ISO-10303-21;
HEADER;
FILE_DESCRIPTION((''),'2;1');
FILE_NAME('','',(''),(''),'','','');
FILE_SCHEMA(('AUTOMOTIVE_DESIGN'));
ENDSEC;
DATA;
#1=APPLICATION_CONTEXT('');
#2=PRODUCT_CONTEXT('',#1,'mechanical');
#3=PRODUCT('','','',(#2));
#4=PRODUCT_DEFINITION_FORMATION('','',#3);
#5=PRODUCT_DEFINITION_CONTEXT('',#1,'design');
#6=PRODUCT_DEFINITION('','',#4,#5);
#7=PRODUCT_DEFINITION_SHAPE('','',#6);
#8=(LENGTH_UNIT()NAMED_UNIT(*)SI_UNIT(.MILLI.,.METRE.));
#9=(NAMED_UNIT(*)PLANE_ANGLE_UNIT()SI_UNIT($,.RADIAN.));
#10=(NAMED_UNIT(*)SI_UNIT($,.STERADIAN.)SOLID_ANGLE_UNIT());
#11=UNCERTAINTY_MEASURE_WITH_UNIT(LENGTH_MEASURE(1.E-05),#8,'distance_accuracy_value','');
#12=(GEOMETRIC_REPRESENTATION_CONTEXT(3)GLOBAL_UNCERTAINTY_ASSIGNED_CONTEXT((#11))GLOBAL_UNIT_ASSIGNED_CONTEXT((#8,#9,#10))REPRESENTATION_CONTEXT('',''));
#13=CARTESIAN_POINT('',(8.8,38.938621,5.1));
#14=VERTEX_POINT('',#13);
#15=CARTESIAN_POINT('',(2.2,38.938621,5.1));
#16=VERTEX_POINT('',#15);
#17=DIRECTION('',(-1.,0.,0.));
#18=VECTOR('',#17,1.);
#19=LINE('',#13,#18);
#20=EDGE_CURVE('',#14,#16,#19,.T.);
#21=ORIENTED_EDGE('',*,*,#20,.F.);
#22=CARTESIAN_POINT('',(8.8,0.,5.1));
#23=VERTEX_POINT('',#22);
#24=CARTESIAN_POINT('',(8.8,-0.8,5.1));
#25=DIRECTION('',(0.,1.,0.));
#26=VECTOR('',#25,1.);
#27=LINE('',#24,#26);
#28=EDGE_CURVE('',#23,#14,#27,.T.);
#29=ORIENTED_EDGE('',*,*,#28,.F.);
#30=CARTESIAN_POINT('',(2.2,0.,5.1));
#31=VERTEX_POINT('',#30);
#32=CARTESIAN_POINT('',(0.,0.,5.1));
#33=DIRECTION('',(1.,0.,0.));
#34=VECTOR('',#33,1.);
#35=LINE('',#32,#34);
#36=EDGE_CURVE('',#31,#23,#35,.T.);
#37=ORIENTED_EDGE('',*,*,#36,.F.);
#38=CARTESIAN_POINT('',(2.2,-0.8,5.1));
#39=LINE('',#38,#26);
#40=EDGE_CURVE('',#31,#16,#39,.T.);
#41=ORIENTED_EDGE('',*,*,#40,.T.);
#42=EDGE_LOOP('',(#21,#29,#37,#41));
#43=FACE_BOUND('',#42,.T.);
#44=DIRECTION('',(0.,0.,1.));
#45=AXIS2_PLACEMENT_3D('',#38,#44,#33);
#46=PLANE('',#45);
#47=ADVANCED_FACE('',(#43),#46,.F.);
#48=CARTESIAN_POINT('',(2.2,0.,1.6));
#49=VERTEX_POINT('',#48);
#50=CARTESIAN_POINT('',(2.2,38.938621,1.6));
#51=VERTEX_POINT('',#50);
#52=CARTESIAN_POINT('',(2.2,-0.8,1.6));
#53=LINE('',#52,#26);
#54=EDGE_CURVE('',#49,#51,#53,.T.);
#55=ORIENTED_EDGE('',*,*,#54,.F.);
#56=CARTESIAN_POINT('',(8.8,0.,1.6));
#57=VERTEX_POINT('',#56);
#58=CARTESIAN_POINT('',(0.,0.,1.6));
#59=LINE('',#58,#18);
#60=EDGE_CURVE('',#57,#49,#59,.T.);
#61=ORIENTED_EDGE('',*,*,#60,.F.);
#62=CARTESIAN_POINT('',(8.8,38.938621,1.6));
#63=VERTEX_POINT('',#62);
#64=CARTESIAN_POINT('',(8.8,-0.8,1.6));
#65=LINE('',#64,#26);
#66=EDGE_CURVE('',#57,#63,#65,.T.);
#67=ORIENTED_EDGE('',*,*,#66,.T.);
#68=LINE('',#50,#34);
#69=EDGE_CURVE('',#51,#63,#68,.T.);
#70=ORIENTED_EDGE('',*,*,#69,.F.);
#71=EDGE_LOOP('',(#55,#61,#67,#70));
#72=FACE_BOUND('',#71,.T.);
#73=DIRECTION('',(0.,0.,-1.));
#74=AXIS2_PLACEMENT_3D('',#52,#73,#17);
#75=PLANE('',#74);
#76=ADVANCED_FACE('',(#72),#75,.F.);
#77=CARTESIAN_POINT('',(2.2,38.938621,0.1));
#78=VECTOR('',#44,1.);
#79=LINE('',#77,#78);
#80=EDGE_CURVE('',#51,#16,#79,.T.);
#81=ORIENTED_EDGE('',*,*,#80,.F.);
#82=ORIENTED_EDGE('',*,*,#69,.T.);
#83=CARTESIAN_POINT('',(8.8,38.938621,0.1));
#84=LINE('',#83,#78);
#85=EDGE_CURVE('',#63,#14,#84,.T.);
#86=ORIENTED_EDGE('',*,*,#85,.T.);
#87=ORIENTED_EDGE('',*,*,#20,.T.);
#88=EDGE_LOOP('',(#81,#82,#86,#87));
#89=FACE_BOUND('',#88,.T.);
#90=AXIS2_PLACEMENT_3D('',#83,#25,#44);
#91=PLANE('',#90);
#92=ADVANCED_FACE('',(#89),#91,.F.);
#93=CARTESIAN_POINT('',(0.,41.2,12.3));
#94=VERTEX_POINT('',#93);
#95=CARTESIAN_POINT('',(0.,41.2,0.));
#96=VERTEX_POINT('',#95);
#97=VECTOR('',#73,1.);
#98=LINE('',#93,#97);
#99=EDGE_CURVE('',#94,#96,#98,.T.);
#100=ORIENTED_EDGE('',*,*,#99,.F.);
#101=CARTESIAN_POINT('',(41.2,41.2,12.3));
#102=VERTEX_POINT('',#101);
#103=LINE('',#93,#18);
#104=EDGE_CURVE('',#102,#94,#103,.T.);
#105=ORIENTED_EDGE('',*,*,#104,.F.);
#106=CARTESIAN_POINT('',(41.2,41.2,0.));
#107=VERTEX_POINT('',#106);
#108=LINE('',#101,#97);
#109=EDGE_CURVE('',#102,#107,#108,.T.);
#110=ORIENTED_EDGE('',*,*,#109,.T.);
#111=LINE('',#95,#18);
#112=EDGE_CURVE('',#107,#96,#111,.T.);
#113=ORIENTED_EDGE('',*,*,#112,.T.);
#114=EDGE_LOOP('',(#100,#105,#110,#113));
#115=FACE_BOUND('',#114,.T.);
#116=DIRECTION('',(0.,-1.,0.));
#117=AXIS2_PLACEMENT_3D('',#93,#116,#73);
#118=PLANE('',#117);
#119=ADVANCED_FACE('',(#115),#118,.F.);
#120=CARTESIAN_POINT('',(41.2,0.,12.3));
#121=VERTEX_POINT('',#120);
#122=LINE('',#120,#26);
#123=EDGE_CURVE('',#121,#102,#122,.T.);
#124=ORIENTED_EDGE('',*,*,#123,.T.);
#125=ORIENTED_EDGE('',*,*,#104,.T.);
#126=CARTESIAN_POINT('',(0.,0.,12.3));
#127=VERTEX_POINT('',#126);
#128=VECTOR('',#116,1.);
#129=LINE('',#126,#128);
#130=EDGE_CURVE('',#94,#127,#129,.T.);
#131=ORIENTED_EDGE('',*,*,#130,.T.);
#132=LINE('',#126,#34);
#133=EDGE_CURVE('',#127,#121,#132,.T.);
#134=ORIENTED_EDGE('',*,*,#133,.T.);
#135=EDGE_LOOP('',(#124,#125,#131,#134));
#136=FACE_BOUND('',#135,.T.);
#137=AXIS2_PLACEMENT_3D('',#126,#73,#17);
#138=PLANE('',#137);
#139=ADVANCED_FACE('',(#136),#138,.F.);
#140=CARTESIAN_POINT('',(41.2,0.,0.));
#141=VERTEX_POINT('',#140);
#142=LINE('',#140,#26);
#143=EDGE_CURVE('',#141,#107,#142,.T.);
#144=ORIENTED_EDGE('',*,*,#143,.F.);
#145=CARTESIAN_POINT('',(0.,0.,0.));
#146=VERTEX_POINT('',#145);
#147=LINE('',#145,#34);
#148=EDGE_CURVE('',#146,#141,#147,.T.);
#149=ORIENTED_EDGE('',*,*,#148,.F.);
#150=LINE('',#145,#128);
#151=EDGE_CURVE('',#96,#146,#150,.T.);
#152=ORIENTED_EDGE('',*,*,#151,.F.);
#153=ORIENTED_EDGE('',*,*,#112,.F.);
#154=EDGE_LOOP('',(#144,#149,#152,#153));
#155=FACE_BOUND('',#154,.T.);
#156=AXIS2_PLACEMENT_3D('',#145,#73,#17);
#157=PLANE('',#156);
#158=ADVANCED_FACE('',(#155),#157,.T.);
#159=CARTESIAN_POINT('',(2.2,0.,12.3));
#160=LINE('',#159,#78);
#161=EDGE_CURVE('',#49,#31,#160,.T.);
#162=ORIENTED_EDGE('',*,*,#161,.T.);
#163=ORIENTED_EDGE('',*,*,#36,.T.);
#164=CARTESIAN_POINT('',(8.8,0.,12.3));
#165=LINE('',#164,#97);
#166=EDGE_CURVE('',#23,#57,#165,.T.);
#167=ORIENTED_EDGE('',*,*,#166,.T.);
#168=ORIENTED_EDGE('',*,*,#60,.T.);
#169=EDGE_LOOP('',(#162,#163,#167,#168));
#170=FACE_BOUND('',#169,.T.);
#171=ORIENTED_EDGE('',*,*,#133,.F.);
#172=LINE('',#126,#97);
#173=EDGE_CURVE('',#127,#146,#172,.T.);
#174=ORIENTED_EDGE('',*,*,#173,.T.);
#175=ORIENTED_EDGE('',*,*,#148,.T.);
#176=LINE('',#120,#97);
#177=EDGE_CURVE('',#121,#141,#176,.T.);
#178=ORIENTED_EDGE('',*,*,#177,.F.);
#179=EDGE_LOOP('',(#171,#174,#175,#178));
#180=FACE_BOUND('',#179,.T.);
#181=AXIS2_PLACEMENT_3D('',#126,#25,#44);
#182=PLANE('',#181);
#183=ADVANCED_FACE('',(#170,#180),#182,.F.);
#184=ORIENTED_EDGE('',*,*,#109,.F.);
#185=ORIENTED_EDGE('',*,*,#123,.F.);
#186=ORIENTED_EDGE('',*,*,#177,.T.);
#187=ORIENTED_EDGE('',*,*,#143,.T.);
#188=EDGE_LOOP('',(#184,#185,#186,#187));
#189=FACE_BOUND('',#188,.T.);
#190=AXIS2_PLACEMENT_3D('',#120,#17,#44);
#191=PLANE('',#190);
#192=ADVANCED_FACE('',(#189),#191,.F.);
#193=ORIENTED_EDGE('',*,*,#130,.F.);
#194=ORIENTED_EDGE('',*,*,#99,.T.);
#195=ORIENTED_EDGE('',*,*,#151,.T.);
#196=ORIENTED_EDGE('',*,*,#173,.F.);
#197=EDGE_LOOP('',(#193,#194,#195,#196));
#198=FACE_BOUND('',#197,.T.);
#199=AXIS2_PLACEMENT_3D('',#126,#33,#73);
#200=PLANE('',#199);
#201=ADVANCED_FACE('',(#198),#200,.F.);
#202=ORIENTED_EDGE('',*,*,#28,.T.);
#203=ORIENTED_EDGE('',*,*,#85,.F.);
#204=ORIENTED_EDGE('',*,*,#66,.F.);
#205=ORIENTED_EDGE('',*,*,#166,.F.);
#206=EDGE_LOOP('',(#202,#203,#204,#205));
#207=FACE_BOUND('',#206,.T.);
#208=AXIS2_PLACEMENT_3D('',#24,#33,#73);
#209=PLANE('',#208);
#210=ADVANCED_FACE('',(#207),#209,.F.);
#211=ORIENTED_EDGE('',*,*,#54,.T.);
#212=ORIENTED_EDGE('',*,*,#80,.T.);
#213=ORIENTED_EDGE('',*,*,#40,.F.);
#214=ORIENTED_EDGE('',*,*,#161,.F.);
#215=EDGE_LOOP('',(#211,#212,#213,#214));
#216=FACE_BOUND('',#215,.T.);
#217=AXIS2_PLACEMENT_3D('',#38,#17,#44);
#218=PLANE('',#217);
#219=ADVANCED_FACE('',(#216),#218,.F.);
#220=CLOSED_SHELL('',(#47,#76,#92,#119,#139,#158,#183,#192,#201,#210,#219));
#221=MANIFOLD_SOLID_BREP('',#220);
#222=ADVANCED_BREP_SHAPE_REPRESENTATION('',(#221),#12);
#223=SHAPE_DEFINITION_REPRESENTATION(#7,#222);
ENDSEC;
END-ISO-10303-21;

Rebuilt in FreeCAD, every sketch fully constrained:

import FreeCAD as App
import Part
import Sketcher

V = App.Vector


def add_polygon(sketch, points):
    """Adds a closed chain of lines whose ends are joined by coincident constraints."""
    first, n = sketch.GeometryCount, len(points)
    for a, b in zip(points, points[1:] + points[:1]):
        sketch.addGeometry(Part.LineSegment(App.Vector(*a, 0), App.Vector(*b, 0)), False)
    for i in range(n):
        sketch.addConstraint(Sketcher.Constraint("Coincident", first + i, 2, first + (i + 1) % n, 1))

doc = App.newDocument("Part")
body = doc.addObject("PartDesign::Body", "Body")

# Sketch on XY plane
sketch1 = body.newObject("Sketcher::SketchObject", "Sketch")
sketch1.AttachmentSupport = (doc.getObject("XY_Plane"), [""])
sketch1.MapMode = "FlatFace"
add_polygon(sketch1, [(0, 41), (0, 0), (41, 0), (41, 41)])  # lines 0-3
sketch1.addConstraint([
    Sketcher.Constraint("Vertical", 0),
    Sketcher.Constraint("Horizontal", 1),
    Sketcher.Constraint("Vertical", 2),
    Sketcher.Constraint("Horizontal", 3),
    Sketcher.Constraint("Coincident", 0, 2, -1, 1),
    Sketcher.Constraint("Equal", 3, 0),
    Sketcher.Constraint("DistanceX", 1, 1, 1, 2, 41.2),
])
pad1 = body.newObject("PartDesign::Pad", "Pad")
pad1.Profile = sketch1
pad1.Length = 12.3

# Sketch on XZ plane
sketch2 = body.newObject("Sketcher::SketchObject", "Sketch001")
sketch2.AttachmentSupport = (doc.getObject("XZ_Plane"), [""])
sketch2.MapMode = "FlatFace"
sketch2.AttachmentOffset = App.Placement(V(0, 0, -41.2), App.Rotation())
add_polygon(sketch2, [(2.2, 1.6), (2.2, 5.1), (8.8, 5.1), (8.8, 1.6)])  # lines 0-3
sketch2.addConstraint([
    Sketcher.Constraint("Vertical", 0),
    Sketcher.Constraint("Horizontal", 1),
    Sketcher.Constraint("Vertical", 2),
    Sketcher.Constraint("Horizontal", 3),
    Sketcher.Constraint("DistanceX", 1, 1, 1, 2, 6.6),
    Sketcher.Constraint("DistanceY", 0, 1, 0, 2, 3.5),
    Sketcher.Constraint("DistanceX", -1, 1, 0, 2, 2.2),
    Sketcher.Constraint("DistanceY", -1, 1, 0, 2, 5.1),
])
pocket1 = body.newObject("PartDesign::Pocket", "Pocket")
pocket1.Profile = sketch2
pocket1.Length = 42
pocket1.Reversed = True

# Sketch on XY plane
sketch3 = body.newObject("Sketcher::SketchObject", "Sketch002")
sketch3.AttachmentSupport = (doc.getObject("XY_Plane"), [""])
sketch3.MapMode = "FlatFace"
sketch3.AttachmentOffset = App.Placement(V(0, 0, 5.1), App.Rotation())
add_polygon(sketch3, [(8.8, 41.2), (8.8, 38.9), (2.2, 38.9), (2.2, 41.2)])  # lines 0-3
sketch3.addConstraint([
    Sketcher.Constraint("Vertical", 0),
    Sketcher.Constraint("Horizontal", 1),
    Sketcher.Constraint("Vertical", 2),
    Sketcher.Constraint("Horizontal", 3),
    Sketcher.Constraint("DistanceX", 1, 2, 1, 1, 6.6),
    Sketcher.Constraint("DistanceX", -1, 1, 0, 2, 8.8),
    Sketcher.Constraint("DistanceY", -1, 1, 2, 2, 41.2),
    Sketcher.Constraint("DistanceY", 0, 2, 0, 1, 2.261379),
])
pad2 = body.newObject("PartDesign::Pad", "Pad001")
pad2.Profile = sketch3
pad2.Length = 5
pad2.Reversed = True

doc.recompute()
